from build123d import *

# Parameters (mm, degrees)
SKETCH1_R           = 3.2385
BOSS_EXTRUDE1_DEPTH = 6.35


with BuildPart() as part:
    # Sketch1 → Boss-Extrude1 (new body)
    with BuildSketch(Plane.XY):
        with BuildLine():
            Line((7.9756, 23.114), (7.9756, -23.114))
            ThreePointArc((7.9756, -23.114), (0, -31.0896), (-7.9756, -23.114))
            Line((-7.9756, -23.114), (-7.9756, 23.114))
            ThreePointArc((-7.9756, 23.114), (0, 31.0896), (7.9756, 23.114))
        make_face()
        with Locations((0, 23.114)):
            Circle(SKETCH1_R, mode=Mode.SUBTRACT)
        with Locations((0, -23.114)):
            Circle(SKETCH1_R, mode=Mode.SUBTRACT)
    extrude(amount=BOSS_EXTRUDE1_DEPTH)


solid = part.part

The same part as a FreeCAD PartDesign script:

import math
import FreeCAD as App
import Part
import Sketcher
Q = App.Units.Quantity

doc = App.newDocument("Part")
body = doc.addObject("PartDesign::Body", "Body")

# Sketch on XY plane
sketch1 = body.newObject("Sketcher::SketchObject", "Sketch")
sketch1.AttachmentSupport = (doc.getObject("XY_Plane"), [""])
sketch1.MapMode = "FlatFace"
sketch1.addGeometry([
    Part.LineSegment(App.Vector(8, -23.1, 0), App.Vector(8, 23.1, 0)),  # 0
    Part.ArcOfCircle(Part.Circle(App.Vector(0, 23.1, 0), App.Vector(0, 0, 1), 8), math.radians(0), math.radians(180)),  # 1
    Part.LineSegment(App.Vector(-8, 23.1, 0), App.Vector(-8, -23.1, 0)),  # 2
    Part.ArcOfCircle(Part.Circle(App.Vector(0, -23.1, 0), App.Vector(0, 0, 1), 8), math.radians(180), math.radians(360)),  # 3
    Part.Circle(App.Vector(0, -23.1, 0), App.Vector(0, 0, 1), 3.2),  # 4
    Part.Circle(App.Vector(0, 23.1, 0), App.Vector(0, 0, 1), 3.2),  # 5
], False)
sketch1.addConstraint([
    Sketcher.Constraint("Tangent", 0, 2, 1, 1),
    Sketcher.Constraint("Tangent", 1, 2, 2, 1),
    Sketcher.Constraint("Tangent", 2, 2, 3, 1),
    Sketcher.Constraint("Tangent", 3, 2, 0, 1),
    Sketcher.Constraint("Vertical", 0),
    Sketcher.Constraint("Vertical", 2),
    Sketcher.Constraint("Coincident", 4, 3, 3, 3),
    Sketcher.Constraint("Coincident", 5, 3, 1, 3),
    Sketcher.Constraint("Equal", 4, 5),
    Sketcher.Constraint("Symmetric", 1, 3, 3, 3, -1, 1),
    Sketcher.Constraint("Diameter", 4, Q("0.255 in")),
    Sketcher.Constraint("Radius", 1, Q("0.314 in")),
    Sketcher.Constraint("DistanceY", 0, 1, 0, 2, Q("1.82 in")),
])
pad1 = body.newObject("PartDesign::Pad", "Pad")
pad1.Profile = sketch1
pad1.Length = Q("0.25 in")

doc.recompute()
